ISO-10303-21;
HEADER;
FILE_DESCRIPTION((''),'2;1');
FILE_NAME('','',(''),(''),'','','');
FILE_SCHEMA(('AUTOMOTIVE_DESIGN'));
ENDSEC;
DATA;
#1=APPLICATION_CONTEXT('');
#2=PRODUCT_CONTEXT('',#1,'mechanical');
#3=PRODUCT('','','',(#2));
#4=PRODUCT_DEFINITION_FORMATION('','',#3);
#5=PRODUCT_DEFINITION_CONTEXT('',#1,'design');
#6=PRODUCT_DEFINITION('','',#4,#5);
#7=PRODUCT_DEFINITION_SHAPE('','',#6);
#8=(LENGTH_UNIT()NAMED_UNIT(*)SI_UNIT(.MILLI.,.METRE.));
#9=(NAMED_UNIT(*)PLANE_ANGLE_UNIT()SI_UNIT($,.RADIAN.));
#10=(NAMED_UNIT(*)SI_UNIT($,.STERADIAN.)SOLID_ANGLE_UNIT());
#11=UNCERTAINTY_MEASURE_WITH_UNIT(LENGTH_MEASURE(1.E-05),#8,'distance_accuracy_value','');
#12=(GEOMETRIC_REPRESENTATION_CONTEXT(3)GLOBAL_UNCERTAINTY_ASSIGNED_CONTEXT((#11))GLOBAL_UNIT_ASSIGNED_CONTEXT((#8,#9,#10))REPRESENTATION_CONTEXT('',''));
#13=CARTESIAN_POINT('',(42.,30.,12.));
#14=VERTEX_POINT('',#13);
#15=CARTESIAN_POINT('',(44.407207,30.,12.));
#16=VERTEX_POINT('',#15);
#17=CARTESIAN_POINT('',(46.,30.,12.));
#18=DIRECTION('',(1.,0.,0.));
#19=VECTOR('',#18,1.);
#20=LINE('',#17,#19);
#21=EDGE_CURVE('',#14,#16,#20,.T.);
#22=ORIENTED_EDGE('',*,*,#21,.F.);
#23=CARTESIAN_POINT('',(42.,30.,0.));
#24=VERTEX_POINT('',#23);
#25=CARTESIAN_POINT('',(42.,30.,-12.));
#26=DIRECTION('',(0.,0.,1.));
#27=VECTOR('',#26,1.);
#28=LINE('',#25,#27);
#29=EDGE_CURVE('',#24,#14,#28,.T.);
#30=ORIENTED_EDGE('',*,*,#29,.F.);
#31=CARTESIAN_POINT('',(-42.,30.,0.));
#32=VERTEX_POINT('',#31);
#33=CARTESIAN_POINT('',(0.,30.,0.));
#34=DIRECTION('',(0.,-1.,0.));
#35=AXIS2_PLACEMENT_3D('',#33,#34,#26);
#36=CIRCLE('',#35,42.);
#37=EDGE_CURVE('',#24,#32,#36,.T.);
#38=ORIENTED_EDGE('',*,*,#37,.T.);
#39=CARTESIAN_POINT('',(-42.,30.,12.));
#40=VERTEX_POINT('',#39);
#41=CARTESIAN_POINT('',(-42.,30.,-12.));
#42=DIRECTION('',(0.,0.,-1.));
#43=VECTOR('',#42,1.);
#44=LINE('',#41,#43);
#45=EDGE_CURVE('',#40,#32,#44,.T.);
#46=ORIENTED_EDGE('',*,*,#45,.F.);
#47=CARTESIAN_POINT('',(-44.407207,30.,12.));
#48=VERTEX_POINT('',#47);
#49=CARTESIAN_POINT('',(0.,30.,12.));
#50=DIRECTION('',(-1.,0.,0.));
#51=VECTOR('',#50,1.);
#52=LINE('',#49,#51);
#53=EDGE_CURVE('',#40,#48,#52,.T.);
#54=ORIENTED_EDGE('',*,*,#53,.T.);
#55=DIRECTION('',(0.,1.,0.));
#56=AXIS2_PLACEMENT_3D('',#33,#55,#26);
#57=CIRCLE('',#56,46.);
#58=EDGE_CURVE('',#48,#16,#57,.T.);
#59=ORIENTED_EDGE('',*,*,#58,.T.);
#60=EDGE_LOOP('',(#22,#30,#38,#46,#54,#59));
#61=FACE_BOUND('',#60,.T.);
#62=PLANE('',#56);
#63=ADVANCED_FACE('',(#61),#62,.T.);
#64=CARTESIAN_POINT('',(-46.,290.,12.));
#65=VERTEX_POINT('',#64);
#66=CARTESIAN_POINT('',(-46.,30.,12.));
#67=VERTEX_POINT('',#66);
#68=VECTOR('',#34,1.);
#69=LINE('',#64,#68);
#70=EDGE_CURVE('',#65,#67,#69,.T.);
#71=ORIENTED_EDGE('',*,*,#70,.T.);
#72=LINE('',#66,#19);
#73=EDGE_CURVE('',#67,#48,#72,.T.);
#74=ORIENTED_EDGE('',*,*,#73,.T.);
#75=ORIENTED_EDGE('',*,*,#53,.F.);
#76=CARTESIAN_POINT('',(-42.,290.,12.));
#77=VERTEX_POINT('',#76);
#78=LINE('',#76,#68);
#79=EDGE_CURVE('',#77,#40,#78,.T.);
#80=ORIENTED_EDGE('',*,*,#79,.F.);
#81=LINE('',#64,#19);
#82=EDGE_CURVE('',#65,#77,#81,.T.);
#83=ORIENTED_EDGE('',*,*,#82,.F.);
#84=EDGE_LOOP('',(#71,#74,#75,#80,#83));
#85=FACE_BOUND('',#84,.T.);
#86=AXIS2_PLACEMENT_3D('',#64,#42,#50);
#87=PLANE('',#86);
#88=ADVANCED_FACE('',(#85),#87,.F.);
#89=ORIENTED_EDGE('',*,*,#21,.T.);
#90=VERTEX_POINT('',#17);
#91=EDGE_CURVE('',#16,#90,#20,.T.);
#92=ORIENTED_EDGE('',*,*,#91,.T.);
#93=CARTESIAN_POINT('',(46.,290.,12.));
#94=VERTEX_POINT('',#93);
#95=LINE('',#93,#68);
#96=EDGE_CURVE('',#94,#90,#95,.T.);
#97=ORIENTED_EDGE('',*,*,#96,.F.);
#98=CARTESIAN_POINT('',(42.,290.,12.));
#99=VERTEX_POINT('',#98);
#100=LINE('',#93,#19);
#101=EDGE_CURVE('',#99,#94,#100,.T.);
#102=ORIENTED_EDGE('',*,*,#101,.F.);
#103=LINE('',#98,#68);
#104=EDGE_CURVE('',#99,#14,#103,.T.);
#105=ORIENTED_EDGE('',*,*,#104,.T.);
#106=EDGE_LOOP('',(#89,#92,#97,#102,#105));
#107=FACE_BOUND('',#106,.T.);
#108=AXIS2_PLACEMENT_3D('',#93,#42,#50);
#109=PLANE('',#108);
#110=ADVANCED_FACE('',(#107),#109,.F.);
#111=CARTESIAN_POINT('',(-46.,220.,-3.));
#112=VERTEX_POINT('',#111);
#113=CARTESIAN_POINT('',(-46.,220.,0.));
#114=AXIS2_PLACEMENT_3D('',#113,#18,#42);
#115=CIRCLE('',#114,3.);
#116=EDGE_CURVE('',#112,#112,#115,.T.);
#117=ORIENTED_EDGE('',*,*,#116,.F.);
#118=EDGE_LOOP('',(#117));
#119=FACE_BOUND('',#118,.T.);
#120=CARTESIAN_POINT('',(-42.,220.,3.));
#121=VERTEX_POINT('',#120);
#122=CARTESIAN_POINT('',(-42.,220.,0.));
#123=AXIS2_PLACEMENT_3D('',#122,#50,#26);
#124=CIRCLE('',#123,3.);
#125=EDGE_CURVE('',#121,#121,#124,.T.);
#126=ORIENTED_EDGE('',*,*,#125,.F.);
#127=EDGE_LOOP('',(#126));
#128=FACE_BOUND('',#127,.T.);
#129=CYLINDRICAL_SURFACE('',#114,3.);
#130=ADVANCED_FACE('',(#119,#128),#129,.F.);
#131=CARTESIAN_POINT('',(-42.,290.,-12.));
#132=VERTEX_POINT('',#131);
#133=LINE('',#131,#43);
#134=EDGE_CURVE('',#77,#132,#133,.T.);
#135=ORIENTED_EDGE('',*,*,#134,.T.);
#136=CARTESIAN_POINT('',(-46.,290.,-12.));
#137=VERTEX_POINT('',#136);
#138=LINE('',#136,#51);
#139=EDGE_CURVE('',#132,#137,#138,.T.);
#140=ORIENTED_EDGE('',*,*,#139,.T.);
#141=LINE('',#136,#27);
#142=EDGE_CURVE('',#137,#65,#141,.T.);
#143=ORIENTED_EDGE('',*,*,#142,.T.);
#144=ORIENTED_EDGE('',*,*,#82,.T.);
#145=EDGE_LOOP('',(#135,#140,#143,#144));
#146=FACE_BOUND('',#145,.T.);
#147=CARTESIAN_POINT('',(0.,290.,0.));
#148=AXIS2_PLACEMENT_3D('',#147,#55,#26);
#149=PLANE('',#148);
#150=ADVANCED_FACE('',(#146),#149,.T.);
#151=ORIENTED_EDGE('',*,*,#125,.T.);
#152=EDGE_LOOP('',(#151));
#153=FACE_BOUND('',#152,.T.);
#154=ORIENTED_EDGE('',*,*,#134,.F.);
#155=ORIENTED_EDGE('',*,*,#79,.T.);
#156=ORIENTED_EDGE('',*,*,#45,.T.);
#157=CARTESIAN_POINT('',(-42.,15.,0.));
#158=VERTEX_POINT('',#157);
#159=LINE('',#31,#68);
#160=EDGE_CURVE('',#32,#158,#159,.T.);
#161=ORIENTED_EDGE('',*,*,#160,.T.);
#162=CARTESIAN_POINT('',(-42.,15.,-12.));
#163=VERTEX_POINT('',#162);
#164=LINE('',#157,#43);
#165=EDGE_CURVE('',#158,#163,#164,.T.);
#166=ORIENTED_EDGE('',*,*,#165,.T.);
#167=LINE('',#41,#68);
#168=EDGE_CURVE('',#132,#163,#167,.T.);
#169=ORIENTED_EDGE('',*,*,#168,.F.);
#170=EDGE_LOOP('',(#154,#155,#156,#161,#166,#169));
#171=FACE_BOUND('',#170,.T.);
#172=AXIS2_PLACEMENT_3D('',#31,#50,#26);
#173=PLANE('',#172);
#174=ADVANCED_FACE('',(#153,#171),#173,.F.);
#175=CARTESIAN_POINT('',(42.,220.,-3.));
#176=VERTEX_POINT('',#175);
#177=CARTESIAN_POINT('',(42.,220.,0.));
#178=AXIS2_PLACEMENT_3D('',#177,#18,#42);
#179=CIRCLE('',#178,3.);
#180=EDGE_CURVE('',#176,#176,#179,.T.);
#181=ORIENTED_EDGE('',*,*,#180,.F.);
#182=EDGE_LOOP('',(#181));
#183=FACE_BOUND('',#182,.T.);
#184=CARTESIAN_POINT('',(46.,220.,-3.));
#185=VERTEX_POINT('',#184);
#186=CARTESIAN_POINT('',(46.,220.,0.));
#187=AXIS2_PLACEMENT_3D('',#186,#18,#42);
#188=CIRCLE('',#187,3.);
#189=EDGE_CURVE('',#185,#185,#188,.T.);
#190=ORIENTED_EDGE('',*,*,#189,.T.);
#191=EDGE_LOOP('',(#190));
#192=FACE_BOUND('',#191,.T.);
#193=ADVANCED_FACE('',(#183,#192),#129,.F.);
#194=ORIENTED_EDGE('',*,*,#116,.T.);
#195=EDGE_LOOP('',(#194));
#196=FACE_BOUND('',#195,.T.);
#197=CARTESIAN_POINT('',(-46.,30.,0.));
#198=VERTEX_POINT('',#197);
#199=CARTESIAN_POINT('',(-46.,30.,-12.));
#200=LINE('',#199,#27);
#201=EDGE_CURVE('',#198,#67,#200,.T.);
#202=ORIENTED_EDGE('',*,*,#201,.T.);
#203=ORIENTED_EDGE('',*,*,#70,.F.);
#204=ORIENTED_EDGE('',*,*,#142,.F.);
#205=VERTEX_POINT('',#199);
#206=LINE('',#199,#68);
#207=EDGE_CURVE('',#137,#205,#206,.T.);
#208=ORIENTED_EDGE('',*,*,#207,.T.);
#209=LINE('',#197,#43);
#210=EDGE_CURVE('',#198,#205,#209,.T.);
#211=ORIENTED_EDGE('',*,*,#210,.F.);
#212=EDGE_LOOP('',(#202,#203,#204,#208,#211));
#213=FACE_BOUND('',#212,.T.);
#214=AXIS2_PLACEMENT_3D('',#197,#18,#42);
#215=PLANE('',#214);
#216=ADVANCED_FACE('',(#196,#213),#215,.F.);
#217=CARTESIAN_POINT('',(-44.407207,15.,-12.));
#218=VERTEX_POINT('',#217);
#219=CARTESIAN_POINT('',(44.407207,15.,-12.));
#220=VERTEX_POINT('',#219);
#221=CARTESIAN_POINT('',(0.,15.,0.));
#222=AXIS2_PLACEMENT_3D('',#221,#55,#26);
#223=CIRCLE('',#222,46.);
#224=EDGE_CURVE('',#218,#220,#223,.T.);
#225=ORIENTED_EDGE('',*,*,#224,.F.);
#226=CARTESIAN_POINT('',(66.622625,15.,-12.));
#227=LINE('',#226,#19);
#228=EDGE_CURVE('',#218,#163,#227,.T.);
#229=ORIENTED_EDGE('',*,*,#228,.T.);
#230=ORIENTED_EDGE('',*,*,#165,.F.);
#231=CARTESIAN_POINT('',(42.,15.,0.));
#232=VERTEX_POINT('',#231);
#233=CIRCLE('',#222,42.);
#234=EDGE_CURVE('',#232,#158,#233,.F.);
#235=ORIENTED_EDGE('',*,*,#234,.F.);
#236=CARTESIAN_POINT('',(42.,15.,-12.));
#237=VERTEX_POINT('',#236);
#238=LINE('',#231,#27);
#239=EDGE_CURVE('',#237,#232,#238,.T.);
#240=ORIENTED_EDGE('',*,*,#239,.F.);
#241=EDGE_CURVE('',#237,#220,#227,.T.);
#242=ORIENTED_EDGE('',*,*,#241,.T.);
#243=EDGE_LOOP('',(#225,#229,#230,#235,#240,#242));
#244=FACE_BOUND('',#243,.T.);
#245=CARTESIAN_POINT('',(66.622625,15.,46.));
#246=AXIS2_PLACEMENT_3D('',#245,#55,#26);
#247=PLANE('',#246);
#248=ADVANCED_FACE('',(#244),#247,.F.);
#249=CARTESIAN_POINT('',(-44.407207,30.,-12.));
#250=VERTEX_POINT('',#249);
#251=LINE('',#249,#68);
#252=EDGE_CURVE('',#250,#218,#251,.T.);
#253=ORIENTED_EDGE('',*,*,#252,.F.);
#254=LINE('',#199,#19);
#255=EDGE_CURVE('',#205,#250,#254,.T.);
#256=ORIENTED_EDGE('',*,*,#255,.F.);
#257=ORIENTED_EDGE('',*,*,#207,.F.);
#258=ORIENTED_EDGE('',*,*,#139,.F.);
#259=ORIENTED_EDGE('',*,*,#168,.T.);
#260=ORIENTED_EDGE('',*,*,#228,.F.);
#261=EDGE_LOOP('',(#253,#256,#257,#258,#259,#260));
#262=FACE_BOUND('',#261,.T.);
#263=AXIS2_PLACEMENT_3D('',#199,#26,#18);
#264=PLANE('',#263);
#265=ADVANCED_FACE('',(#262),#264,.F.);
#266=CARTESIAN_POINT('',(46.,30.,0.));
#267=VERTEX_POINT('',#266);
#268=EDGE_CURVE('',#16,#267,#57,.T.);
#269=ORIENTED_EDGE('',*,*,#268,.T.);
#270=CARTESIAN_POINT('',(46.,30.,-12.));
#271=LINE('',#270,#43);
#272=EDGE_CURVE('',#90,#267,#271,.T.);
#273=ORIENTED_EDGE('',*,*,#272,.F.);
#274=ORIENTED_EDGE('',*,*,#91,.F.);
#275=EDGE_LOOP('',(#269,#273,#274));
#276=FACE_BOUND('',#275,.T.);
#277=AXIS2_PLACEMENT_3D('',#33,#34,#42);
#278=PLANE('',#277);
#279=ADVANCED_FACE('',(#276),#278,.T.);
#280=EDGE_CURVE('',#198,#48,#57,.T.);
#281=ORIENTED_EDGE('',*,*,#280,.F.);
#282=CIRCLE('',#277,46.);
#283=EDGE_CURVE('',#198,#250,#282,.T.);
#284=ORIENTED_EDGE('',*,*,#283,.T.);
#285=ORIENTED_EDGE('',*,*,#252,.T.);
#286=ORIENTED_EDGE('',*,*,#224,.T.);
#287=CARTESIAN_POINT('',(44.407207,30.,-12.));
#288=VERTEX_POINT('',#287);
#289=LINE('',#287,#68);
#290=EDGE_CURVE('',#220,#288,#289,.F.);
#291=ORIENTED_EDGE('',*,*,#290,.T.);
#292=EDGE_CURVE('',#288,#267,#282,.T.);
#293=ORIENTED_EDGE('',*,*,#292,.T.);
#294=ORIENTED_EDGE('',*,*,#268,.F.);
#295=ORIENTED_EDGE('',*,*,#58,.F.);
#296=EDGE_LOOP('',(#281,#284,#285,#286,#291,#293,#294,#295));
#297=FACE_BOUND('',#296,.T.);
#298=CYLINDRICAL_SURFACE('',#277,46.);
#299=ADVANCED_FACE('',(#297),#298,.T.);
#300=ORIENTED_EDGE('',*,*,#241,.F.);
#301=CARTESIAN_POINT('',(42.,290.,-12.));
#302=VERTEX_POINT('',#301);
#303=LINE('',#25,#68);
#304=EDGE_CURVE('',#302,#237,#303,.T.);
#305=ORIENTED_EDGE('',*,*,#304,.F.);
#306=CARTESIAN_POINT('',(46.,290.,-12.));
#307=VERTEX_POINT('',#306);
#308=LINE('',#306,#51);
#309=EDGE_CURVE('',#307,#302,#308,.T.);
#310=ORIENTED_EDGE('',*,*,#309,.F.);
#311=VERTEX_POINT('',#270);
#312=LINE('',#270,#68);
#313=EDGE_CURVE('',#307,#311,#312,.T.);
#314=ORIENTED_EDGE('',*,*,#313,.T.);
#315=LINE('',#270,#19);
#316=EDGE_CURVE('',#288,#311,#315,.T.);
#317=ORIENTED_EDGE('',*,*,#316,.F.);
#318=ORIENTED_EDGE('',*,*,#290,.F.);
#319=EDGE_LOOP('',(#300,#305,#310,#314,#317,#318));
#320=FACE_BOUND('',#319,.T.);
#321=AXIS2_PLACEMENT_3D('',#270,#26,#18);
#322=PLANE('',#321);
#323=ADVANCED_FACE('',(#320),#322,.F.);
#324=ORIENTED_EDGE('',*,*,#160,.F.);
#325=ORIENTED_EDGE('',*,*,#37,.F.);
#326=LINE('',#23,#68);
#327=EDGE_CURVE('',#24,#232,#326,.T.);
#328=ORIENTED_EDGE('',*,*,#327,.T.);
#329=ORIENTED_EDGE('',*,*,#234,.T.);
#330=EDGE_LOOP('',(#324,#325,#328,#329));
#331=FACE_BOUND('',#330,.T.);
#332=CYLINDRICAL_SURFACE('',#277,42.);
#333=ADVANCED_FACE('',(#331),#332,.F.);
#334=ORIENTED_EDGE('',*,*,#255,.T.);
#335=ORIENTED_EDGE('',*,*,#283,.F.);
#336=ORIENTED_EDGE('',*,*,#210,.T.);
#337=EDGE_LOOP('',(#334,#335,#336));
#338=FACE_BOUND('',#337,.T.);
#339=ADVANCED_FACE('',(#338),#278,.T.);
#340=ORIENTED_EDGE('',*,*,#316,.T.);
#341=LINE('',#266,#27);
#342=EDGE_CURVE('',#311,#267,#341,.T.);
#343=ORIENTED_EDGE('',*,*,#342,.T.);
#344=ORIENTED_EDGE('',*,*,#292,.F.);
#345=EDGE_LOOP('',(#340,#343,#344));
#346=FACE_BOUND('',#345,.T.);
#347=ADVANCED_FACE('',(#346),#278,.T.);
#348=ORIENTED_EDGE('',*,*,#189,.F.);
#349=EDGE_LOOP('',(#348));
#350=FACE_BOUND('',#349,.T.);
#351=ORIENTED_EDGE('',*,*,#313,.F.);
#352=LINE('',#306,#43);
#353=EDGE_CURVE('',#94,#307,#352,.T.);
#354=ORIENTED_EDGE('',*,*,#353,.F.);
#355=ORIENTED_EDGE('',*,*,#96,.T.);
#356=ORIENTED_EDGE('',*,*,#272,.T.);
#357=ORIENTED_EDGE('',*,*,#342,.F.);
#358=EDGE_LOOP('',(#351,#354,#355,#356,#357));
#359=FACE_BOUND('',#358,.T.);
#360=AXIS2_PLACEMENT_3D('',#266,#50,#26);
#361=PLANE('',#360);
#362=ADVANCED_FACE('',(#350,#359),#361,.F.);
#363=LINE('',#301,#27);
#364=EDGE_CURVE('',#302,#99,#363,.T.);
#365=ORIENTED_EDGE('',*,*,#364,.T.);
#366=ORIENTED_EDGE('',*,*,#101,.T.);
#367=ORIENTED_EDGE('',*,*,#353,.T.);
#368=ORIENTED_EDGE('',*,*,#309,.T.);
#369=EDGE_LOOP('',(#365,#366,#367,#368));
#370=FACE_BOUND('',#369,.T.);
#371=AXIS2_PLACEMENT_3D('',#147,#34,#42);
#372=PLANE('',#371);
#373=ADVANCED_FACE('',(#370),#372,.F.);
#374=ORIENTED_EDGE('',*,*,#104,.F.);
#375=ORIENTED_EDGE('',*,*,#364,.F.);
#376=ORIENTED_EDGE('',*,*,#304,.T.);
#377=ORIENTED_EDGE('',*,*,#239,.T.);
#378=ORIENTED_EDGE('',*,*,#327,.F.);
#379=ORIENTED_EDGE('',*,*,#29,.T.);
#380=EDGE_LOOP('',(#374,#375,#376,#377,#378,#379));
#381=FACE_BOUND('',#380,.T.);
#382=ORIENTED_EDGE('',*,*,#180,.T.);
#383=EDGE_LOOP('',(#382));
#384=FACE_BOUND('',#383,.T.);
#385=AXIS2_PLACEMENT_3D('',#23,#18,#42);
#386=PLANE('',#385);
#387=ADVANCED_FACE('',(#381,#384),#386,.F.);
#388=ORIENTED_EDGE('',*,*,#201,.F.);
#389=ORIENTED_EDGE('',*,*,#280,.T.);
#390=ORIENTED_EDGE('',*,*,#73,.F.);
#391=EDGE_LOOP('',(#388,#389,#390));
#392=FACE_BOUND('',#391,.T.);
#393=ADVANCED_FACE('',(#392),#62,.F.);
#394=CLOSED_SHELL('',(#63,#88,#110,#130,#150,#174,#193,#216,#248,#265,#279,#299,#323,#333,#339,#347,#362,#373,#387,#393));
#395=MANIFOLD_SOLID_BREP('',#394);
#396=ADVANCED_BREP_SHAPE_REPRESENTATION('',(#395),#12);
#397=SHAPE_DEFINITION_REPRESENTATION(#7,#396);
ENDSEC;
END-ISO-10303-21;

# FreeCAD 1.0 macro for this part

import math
import FreeCAD as App
import Part
import Sketcher
Q = App.Units.Quantity


def add_polygon(sketch, points):
    """Adds a closed chain of lines whose ends are joined by coincident constraints."""
    first, n = sketch.GeometryCount, len(points)
    for a, b in zip(points, points[1:] + points[:1]):
        sketch.addGeometry(Part.LineSegment(App.Vector(*a, 0), App.Vector(*b, 0)), False)
    for i in range(n):
        sketch.addConstraint(Sketcher.Constraint("Coincident", first + i, 2, first + (i + 1) % n, 1))

doc = App.newDocument("Part")
body = doc.addObject("PartDesign::Body", "Body")

sketch1 = doc.addObject("Sketcher::SketchObject", "Sketch")
body.addObject(sketch1)
sketch1.AttachmentSupport = (doc.XZ_Plane, [""])
sketch1.MapMode = "FlatFace"
sketch1.addGeometry([
    Part.LineSegment(App.Vector(-46, -12, 0), App.Vector(-46, 0, 0)),
    Part.ArcOfCircle(Part.Circle(App.Vector(0, 0, 0), App.Vector(0, 0, 1), 46), math.radians(0), math.radians(180)),
    Part.LineSegment(App.Vector(46, 0, 0), App.Vector(46, -12, 0)),
    Part.LineSegment(App.Vector(46, -12, 0), App.Vector(42, -12, 0)),
    Part.LineSegment(App.Vector(42, -12, 0), App.Vector(42, 0, 0)),
    Part.ArcOfCircle(Part.Circle(App.Vector(0, 0, 0), App.Vector(0, 0, 1), 42), math.radians(0), math.radians(180)),
    Part.LineSegment(App.Vector(-42, 0, 0), App.Vector(-42, -12, 0)),
    Part.LineSegment(App.Vector(-42, -12, 0), App.Vector(-46, -12, 0)),
], False)
sketch1.addConstraint([
    Sketcher.Constraint("Tangent", 0, 2, 1, 2),
    Sketcher.Constraint("Tangent", 1, 1, 2, 1),
    Sketcher.Constraint("Coincident", 2, 2, 3, 1),
    Sketcher.Constraint("Coincident", 3, 2, 4, 1),
    Sketcher.Constraint("Tangent", 4, 2, 5, 1),
    Sketcher.Constraint("Tangent", 5, 2, 6, 1),
    Sketcher.Constraint("Coincident", 6, 2, 7, 1),
    Sketcher.Constraint("Coincident", 7, 2, 0, 1),
    Sketcher.Constraint("Vertical", 0),
    Sketcher.Constraint("Vertical", 2),
    Sketcher.Constraint("Horizontal", 3),
    Sketcher.Constraint("Vertical", 4),
    Sketcher.Constraint("Vertical", 6),
    Sketcher.Constraint("Horizontal", 7),
    Sketcher.Constraint("Coincident", 1, 3, -1, 1),
    Sketcher.Constraint("Coincident", 5, 3, -1, 1),
    Sketcher.Constraint("Horizontal", 3, 2, 6, 2),
    Sketcher.Constraint("Radius", 1, Q("46 mm")),
    Sketcher.Constraint("Radius", 5, Q("42 mm")),
    Sketcher.Constraint("DistanceY", 0, 1, 0, 2, Q("12 mm")),
])
pad1 = doc.addObject("PartDesign::Pad", "Pad")
body.addObject(pad1)
pad1.Profile = sketch1
pad1.Length = 30
pad1.Reversed = True

sketch2 = doc.addObject("Sketcher::SketchObject", "Sketch001")
body.addObject(sketch2)
sketch2.AttachmentSupport = (doc.XZ_Plane, [""])
sketch2.MapMode = "FlatFace"
sketch2.AttachmentOffset = App.Placement(App.Vector(0, 0, -30), App.Rotation())
add_polygon(sketch2, [(42, -12), (42, 12), (46, 12), (46, -12)])
add_polygon(sketch2, [(-46, -12), (-46, 12), (-42, 12), (-42, -12)])
sketch2.addConstraint([
    Sketcher.Constraint("Vertical", 0),
    Sketcher.Constraint("Horizontal", 1),
    Sketcher.Constraint("Vertical", 2),
    Sketcher.Constraint("Horizontal", 3),
    Sketcher.Constraint("Vertical", 4),
    Sketcher.Constraint("Horizontal", 5),
    Sketcher.Constraint("Vertical", 6),
    Sketcher.Constraint("Horizontal", 7),
    Sketcher.Constraint("Symmetric", 2, 2, 4, 2, -1, 1),
    Sketcher.Constraint("Symmetric", 0, 2, 6, 2, -1, 1),
    Sketcher.Constraint("Horizontal", 1, 2, 4, 2),
    Sketcher.Constraint("DistanceX", 1, 1, 1, 2, Q("4 mm")),
    Sketcher.Constraint("DistanceY", 0, 1, 0, 2, Q("24 mm")),
    Sketcher.Constraint("DistanceX", -1, 1, 0, 2, Q("42 mm")),
])
pad2 = doc.addObject("PartDesign::Pad", "Pad001")
body.addObject(pad2)
pad2.Profile = sketch2
pad2.Length = 260
pad2.Reversed = True

sketch3 = doc.addObject("Sketcher::SketchObject", "Sketch002")
body.addObject(sketch3)
sketch3.AttachmentSupport = (doc.XY_Plane, [""])
sketch3.MapMode = "FlatFace"
sketch3.AttachmentOffset = App.Placement(App.Vector(0, 0, -12), App.Rotation())
add_polygon(sketch3, [(67, 15), (67, -101), (-83, -101), (-83, 15)])
sketch3.addConstraint([
    Sketcher.Constraint("Vertical", 0),
    Sketcher.Constraint("Horizontal", 1),
    Sketcher.Constraint("Vertical", 2),
    Sketcher.Constraint("Horizontal", 3),
    Sketcher.Constraint("DistanceY", -1, 1, 2, 2, Q("15 mm")),
    Sketcher.Constraint("DistanceX", 1, 2, 1, 1, Q("149.597156 mm")),
    Sketcher.Constraint("DistanceY", 0, 2, 0, 1, Q("115.941502 mm")),
    Sketcher.Constraint("DistanceX", 1, 2, -1, 1, Q("82.97453 mm")),
])
pocket1 = doc.addObject("PartDesign::Pocket", "Pocket")
body.addObject(pocket1)
pocket1.Profile = sketch3
pocket1.Type = "ThroughAll"
pocket1.Reversed = True

sketch4 = doc.addObject("Sketcher::SketchObject", "Sketch003")
body.addObject(sketch4)
sketch4.AttachmentSupport = (doc.YZ_Plane, [""])
sketch4.MapMode = "FlatFace"
sketch4.AttachmentOffset = App.Placement(App.Vector(0, 0, 46), App.Rotation())
sketch4.addGeometry(Part.Circle(App.Vector(220, 0, 0), App.Vector(0, 0, 1), 3), False)
sketch4.addConstraint([
    Sketcher.Constraint("PointOnObject", 0, 3, -1),
    Sketcher.Constraint("Diameter", 0, Q("6 mm")),
    Sketcher.Constraint("DistanceX", -1, 1, 0, 3, Q("220 mm")),
])
pocket2 = doc.addObject("PartDesign::Pocket", "Pocket001")
body.addObject(pocket2)
pocket2.Profile = sketch4
pocket2.Type = "ThroughAll"

sketch5 = doc.addObject("Sketcher::SketchObject", "Sketch004")
body.addObject(sketch5)
sketch5.AttachmentSupport = (doc.XZ_Plane, [""])
sketch5.MapMode = "FlatFace"
sketch5.AttachmentOffset = App.Placement(App.Vector(0, 0, -15), App.Rotation())
sketch5.addGeometry([
    Part.Circle(App.Vector(0, 0, 0), App.Vector(0, 0, 1), 50),
    Part.Circle(App.Vector(0, 0, 0), App.Vector(0, 0, 1), 46),
], False)
sketch5.addConstraint([
    Sketcher.Constraint("Coincident", 0, 3, -1, 1),
    Sketcher.Constraint("Coincident", 1, 3, -1, 1),
    Sketcher.Constraint("Diameter", 0, Q("100 mm")),
    Sketcher.Constraint("Diameter", 1, Q("92 mm")),
])
pocket3 = doc.addObject("PartDesign::Pocket", "Pocket002")
body.addObject(pocket3)
pocket3.Profile = sketch5
pocket3.Length = 15

doc.recompute()
